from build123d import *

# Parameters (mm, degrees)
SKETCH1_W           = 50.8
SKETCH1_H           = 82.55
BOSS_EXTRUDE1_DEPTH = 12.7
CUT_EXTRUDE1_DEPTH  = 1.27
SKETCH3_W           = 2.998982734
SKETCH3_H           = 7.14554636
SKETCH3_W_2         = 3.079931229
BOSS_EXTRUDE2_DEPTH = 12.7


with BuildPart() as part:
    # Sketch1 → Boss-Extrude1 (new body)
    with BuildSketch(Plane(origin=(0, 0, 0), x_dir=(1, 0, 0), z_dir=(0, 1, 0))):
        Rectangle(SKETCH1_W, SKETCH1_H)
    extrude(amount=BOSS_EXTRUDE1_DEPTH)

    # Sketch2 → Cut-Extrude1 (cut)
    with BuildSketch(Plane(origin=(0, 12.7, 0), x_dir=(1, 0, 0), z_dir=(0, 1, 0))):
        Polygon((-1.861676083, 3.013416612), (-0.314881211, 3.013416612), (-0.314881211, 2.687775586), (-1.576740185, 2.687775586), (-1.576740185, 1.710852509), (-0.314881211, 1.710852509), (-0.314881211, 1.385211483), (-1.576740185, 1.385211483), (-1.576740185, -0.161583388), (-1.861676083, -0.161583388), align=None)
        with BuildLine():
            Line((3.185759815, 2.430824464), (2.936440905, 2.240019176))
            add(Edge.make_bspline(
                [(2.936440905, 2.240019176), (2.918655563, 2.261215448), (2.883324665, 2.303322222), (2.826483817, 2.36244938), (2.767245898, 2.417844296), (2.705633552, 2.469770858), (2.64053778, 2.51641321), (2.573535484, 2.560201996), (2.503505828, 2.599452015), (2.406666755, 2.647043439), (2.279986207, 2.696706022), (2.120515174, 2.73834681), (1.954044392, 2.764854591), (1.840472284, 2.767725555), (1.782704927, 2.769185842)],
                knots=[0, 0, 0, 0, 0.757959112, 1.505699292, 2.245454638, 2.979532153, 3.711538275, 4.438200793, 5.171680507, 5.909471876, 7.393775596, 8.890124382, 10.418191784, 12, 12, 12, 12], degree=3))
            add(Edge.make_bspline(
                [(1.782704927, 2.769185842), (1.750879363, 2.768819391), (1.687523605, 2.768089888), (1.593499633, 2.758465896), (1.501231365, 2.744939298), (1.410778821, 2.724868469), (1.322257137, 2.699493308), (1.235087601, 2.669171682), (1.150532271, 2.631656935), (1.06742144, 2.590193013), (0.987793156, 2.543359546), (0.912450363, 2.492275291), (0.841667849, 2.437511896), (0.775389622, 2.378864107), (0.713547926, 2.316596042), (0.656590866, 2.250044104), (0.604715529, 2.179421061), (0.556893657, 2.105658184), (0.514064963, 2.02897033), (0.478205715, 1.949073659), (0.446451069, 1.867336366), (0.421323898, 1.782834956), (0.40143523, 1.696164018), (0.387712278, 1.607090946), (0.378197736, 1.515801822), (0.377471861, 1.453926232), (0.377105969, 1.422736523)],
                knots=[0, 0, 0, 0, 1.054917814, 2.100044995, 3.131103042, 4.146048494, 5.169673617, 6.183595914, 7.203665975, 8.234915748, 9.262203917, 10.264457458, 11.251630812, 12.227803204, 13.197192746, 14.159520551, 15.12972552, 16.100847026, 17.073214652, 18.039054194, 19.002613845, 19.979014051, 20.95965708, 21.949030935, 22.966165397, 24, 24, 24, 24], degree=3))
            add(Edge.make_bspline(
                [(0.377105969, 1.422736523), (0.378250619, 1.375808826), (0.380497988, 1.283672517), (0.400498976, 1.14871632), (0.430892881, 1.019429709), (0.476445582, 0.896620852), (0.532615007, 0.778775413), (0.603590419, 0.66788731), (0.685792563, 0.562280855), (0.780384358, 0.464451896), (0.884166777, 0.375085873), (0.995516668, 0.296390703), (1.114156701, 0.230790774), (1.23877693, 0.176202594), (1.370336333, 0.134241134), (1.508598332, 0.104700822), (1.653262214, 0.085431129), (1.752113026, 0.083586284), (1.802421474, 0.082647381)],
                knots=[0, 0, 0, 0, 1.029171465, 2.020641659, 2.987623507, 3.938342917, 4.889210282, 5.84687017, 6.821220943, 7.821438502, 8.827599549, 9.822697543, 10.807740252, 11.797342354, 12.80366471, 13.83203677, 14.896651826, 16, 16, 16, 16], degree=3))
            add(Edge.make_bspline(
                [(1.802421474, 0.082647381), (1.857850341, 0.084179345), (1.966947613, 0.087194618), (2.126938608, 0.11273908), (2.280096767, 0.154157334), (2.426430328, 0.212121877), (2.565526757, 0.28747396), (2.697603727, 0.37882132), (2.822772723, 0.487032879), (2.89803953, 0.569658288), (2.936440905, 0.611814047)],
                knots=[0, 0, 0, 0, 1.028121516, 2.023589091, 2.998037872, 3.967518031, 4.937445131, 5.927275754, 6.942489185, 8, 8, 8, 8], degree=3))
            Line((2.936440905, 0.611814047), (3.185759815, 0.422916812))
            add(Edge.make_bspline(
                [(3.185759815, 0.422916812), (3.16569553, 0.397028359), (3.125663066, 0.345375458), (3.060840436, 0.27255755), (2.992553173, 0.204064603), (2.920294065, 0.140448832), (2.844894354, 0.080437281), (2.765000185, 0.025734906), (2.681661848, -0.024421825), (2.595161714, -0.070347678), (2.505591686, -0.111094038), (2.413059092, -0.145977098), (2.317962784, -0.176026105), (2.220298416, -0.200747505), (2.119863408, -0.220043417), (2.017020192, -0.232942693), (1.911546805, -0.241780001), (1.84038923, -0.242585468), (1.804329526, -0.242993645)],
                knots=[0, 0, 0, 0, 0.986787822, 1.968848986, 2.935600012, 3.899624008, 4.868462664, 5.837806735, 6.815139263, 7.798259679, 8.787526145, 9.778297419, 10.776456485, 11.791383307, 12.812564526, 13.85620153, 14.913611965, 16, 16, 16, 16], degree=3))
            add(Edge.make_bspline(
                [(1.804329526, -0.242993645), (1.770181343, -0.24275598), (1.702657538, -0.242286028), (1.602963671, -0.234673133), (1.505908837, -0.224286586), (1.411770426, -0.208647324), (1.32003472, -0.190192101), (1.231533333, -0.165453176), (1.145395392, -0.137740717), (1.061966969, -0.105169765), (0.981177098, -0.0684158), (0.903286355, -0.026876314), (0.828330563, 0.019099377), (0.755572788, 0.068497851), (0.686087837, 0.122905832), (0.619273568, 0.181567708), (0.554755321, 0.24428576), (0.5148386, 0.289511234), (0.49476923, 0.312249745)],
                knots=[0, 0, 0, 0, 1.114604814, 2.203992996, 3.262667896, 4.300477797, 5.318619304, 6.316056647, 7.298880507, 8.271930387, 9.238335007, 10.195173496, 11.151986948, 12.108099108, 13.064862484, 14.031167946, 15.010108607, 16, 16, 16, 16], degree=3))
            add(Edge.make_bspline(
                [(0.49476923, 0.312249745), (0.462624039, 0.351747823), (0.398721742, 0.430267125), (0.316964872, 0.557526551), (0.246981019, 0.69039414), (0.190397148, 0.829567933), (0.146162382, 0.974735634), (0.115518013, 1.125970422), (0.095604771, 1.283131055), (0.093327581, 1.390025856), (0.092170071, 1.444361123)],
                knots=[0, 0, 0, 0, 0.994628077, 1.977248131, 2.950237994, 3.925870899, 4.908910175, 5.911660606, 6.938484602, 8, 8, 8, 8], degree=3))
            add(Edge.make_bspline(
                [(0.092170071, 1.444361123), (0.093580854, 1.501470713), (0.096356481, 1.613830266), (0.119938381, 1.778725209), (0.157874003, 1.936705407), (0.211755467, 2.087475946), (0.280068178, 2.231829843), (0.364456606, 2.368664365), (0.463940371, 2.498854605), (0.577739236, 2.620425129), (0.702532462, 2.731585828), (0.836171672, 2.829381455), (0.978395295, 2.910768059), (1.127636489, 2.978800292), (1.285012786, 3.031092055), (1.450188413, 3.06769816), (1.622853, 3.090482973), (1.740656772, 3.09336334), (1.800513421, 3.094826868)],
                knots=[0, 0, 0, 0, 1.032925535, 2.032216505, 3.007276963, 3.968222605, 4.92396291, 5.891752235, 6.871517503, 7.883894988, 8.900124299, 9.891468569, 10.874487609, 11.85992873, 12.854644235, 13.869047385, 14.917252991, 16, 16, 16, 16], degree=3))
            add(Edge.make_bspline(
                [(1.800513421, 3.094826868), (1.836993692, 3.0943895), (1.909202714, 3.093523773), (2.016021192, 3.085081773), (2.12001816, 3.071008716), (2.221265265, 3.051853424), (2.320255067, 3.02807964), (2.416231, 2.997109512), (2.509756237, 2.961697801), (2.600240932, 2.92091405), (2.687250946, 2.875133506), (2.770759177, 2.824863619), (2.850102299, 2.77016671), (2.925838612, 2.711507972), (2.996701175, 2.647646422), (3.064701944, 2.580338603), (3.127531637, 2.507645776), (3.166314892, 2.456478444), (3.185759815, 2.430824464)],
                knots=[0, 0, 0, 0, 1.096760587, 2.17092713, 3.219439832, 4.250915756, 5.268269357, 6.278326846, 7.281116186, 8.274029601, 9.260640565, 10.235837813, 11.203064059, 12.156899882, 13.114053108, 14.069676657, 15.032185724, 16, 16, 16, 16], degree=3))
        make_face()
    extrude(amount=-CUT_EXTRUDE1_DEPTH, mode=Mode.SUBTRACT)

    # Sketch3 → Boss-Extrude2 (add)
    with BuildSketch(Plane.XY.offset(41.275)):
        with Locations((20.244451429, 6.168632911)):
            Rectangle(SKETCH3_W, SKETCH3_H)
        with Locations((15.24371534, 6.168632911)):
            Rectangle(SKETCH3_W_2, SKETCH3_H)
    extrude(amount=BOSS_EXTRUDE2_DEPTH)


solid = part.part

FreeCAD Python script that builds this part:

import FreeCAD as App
import Part
import Sketcher

V = App.Vector
Q = App.Units.Quantity


def add_polygon(sketch, points):
    """Adds a closed chain of lines whose ends are joined by coincident constraints."""
    first, n = sketch.GeometryCount, len(points)
    for a, b in zip(points, points[1:] + points[:1]):
        sketch.addGeometry(Part.LineSegment(App.Vector(*a, 0), App.Vector(*b, 0)), False)
    for i in range(n):
        sketch.addConstraint(Sketcher.Constraint("Coincident", first + i, 2, first + (i + 1) % n, 1))

doc = App.newDocument("Part")
body = doc.addObject("PartDesign::Body", "Body")

# Sketch on XZ plane
sketch1 = body.newObject("Sketcher::SketchObject", "Sketch")
sketch1.AttachmentSupport = (doc.getObject("XZ_Plane"), [""])
sketch1.MapMode = "FlatFace"
add_polygon(sketch1, [(-25, -41), (-25, 41), (25, 41), (25, -41)])  # lines 0-3
sketch1.addConstraint([
    Sketcher.Constraint("Vertical", 0),
    Sketcher.Constraint("Horizontal", 1),
    Sketcher.Constraint("Vertical", 2),
    Sketcher.Constraint("Horizontal", 3),
    Sketcher.Constraint("Symmetric", 0, 2, 2, 2, -1, 1),
    Sketcher.Constraint("DistanceX", 1, 1, 1, 2, Q("2 in")),
    Sketcher.Constraint("DistanceY", 0, 1, 0, 2, Q("3.25 in")),
])
pad1 = body.newObject("PartDesign::Pad", "Pad")
pad1.Profile = sketch1
pad1.Length = Q("0.5 in")
pad1.Reversed = True

# Sketch on XZ plane
sketch2 = body.newObject("Sketcher::SketchObject", "Sketch001")
sketch2.AttachmentSupport = (doc.getObject("XZ_Plane"), [""])
sketch2.MapMode = "FlatFace"
sketch2.AttachmentOffset = App.Placement(V(0, 0, -0.5 * 25.4), App.Rotation())
add_polygon(sketch2, [(-0.314881, -3.013417), (-1.861676, -3.013417), (-1.861676, 0.161583), (-1.57674, 0.161583), (-1.57674, -1.385211), (-0.314881, -1.385211), (-0.314881, -1.710853), (-1.57674, -1.710853), (-1.57674, -2.687776), (-0.314881, -2.687776)])  # lines 0-9
sketch2.addGeometry(Part.LineSegment(V(2.936441, -2.240019, 0), V(3.18576, -2.430824, 0)), False)  # 10
sketch2.addGeometry(Part.BSplineCurve([V(1.800513, -3.094827, 0), V(1.836994, -3.09439, 0), V(1.909203, -3.093524, 0), V(2.016021, -3.085082, 0), V(2.120018, -3.071009, 0), V(2.221265, -3.051853, 0), V(2.320255, -3.02808, 0), V(2.416231, -2.99711, 0), V(2.509756, -2.961698, 0), V(2.600241, -2.920914, 0), V(2.687251, -2.875134, 0), V(2.770759, -2.824864, 0), V(2.850102, -2.770167, 0), V(2.925839, -2.711508, 0), V(2.996701, -2.647646, 0), V(3.064702, -2.580339, 0), V(3.127532, -2.507646, 0), V(3.166315, -2.456478, 0), V(3.18576, -2.430824, 0)], [4, 1, 1, 1, 1, 1, 1, 1, 1, 1, 1, 1, 1, 1, 1, 1, 4], [0, 1.096760587, 2.17092713, 3.219439832, 4.250915756, 5.268269357, 6.278326846, 7.281116186, 8.274029601, 9.260640565, 10.235837813, 11.203064059, 12.156899882, 13.114053108, 14.069676657, 15.032185724, 16], False, 3, [1, 1, 1, 1, 1, 1, 1, 1, 1, 1, 1, 1, 1, 1, 1, 1, 1, 1, 1], False), False)  # 11
sketch2.addGeometry(Part.BSplineCurve([V(0.09217, -1.444361, 0), V(0.093581, -1.501471, 0), V(0.096356, -1.61383, 0), V(0.119938, -1.778725, 0), V(0.157874, -1.936705, 0), V(0.211755, -2.087476, 0), V(0.280068, -2.23183, 0), V(0.364457, -2.368664, 0), V(0.46394, -2.498855, 0), V(0.577739, -2.620425, 0), V(0.702532, -2.731586, 0), V(0.836172, -2.829381, 0), V(0.978395, -2.910768, 0), V(1.127636, -2.9788, 0), V(1.285013, -3.031092, 0), V(1.450188, -3.067698, 0), V(1.622853, -3.090483, 0), V(1.740657, -3.093363, 0), V(1.800513, -3.094827, 0)], [4, 1, 1, 1, 1, 1, 1, 1, 1, 1, 1, 1, 1, 1, 1, 1, 4], [0, 1.032925535, 2.032216505, 3.007276963, 3.968222605, 4.92396291, 5.891752235, 6.871517503, 7.883894988, 8.900124299, 9.891468569, 10.874487609, 11.85992873, 12.854644235, 13.869047385, 14.917252991, 16], False, 3, [1, 1, 1, 1, 1, 1, 1, 1, 1, 1, 1, 1, 1, 1, 1, 1, 1, 1, 1], False), False)  # 12
sketch2.addGeometry(Part.BSplineCurve([V(0.494769, -0.31225, 0), V(0.462624, -0.351748, 0), V(0.398722, -0.430267, 0), V(0.316965, -0.557527, 0), V(0.246981, -0.690394, 0), V(0.190397, -0.829568, 0), V(0.146162, -0.974736, 0), V(0.115518, -1.12597, 0), V(0.095605, -1.283131, 0), V(0.093328, -1.390026, 0), V(0.09217, -1.444361, 0)], [4, 1, 1, 1, 1, 1, 1, 1, 4], [0, 0.994628077, 1.977248131, 2.950237994, 3.925870899, 4.908910175, 5.911660606, 6.938484602, 8], False, 3, [1, 1, 1, 1, 1, 1, 1, 1, 1, 1, 1], False), False)  # 13
sketch2.addGeometry(Part.BSplineCurve([V(1.80433, 0.242994, 0), V(1.770181, 0.242756, 0), V(1.702658, 0.242286, 0), V(1.602964, 0.234673, 0), V(1.505909, 0.224287, 0), V(1.41177, 0.208647, 0), V(1.320035, 0.190192, 0), V(1.231533, 0.165453, 0), V(1.145395, 0.137741, 0), V(1.061967, 0.10517, 0), V(0.981177, 0.068416, 0), V(0.903286, 0.026876, 0), V(0.828331, -0.019099, 0), V(0.755573, -0.068498, 0), V(0.686088, -0.122906, 0), V(0.619274, -0.181568, 0), V(0.554755, -0.244286, 0), V(0.514839, -0.289511, 0), V(0.494769, -0.31225, 0)], [4, 1, 1, 1, 1, 1, 1, 1, 1, 1, 1, 1, 1, 1, 1, 1, 4], [0, 1.114604814, 2.203992996, 3.262667896, 4.300477797, 5.318619304, 6.316056647, 7.298880507, 8.271930387, 9.238335007, 10.195173496, 11.151986948, 12.108099108, 13.064862484, 14.031167946, 15.010108607, 16], False, 3, [1, 1, 1, 1, 1, 1, 1, 1, 1, 1, 1, 1, 1, 1, 1, 1, 1, 1, 1], False), False)  # 14
sketch2.addGeometry(Part.BSplineCurve([V(3.18576, -0.422917, 0), V(3.165696, -0.397028, 0), V(3.125663, -0.345375, 0), V(3.06084, -0.272558, 0), V(2.992553, -0.204065, 0), V(2.920294, -0.140449, 0), V(2.844894, -0.080437, 0), V(2.765, -0.025735, 0), V(2.681662, 0.024422, 0), V(2.595162, 0.070348, 0), V(2.505592, 0.111094, 0), V(2.413059, 0.145977, 0), V(2.317963, 0.176026, 0), V(2.220298, 0.200748, 0), V(2.119863, 0.220043, 0), V(2.01702, 0.232943, 0), V(1.911547, 0.24178, 0), V(1.840389, 0.242585, 0), V(1.80433, 0.242994, 0)], [4, 1, 1, 1, 1, 1, 1, 1, 1, 1, 1, 1, 1, 1, 1, 1, 4], [0, 0.986787822, 1.968848986, 2.935600012, 3.899624008, 4.868462664, 5.837806735, 6.815139263, 7.798259679, 8.787526145, 9.778297419, 10.776456485, 11.791383307, 12.812564526, 13.85620153, 14.913611965, 16], False, 3, [1, 1, 1, 1, 1, 1, 1, 1, 1, 1, 1, 1, 1, 1, 1, 1, 1, 1, 1], False), False)  # 15
sketch2.addGeometry(Part.LineSegment(V(3.18576, -0.422917, 0), V(2.936441, -0.611814, 0)), False)  # 16
sketch2.addGeometry(Part.BSplineCurve([V(1.802421, -0.082647, 0), V(1.85785, -0.084179, 0), V(1.966948, -0.087195, 0), V(2.126939, -0.112739, 0), V(2.280097, -0.154157, 0), V(2.42643, -0.212122, 0), V(2.565527, -0.287474, 0), V(2.697604, -0.378821, 0), V(2.822773, -0.487033, 0), V(2.89804, -0.569658, 0), V(2.936441, -0.611814, 0)], [4, 1, 1, 1, 1, 1, 1, 1, 4], [0, 1.028121516, 2.023589091, 2.998037872, 3.967518031, 4.937445131, 5.927275754, 6.942489185, 8], False, 3, [1, 1, 1, 1, 1, 1, 1, 1, 1, 1, 1], False), False)  # 17
sketch2.addGeometry(Part.BSplineCurve([V(0.377106, -1.422737, 0), V(0.378251, -1.375809, 0), V(0.380498, -1.283673, 0), V(0.400499, -1.148716, 0), V(0.430893, -1.01943, 0), V(0.476446, -0.896621, 0), V(0.532615, -0.778775, 0), V(0.60359, -0.667887, 0), V(0.685793, -0.562281, 0), V(0.780384, -0.464452, 0), V(0.884167, -0.375086, 0), V(0.995517, -0.296391, 0), V(1.114157, -0.230791, 0), V(1.238777, -0.176203, 0), V(1.370336, -0.134241, 0), V(1.508598, -0.104701, 0), V(1.653262, -0.085431, 0), V(1.752113, -0.083586, 0), V(1.802421, -0.082647, 0)], [4, 1, 1, 1, 1, 1, 1, 1, 1, 1, 1, 1, 1, 1, 1, 1, 4], [0, 1.029171465, 2.020641659, 2.987623507, 3.938342917, 4.889210282, 5.84687017, 6.821220943, 7.821438502, 8.827599549, 9.822697543, 10.807740252, 11.797342354, 12.80366471, 13.83203677, 14.896651826, 16], False, 3, [1, 1, 1, 1, 1, 1, 1, 1, 1, 1, 1, 1, 1, 1, 1, 1, 1, 1, 1], False), False)  # 18
sketch2.addGeometry(Part.BSplineCurve([V(1.782705, -2.769186, 0), V(1.750879, -2.768819, 0), V(1.687524, -2.76809, 0), V(1.5935, -2.758466, 0), V(1.501231, -2.744939, 0), V(1.410779, -2.724868, 0), V(1.322257, -2.699493, 0), V(1.235088, -2.669172, 0), V(1.150532, -2.631657, 0), V(1.067421, -2.590193, 0), V(0.987793, -2.54336, 0), V(0.91245, -2.492275, 0), V(0.841668, -2.437512, 0), V(0.77539, -2.378864, 0), V(0.713548, -2.316596, 0), V(0.656591, -2.250044, 0), V(0.604716, -2.179421, 0), V(0.556894, -2.105658, 0), V(0.514065, -2.02897, 0), V(0.478206, -1.949074, 0), V(0.446451, -1.867336, 0), V(0.421324, -1.782835, 0), V(0.401435, -1.696164, 0), V(0.387712, -1.607091, 0), V(0.378198, -1.515802, 0), V(0.377472, -1.453926, 0), V(0.377106, -1.422737, 0)], [4, 1, 1, 1, 1, 1, 1, 1, 1, 1, 1, 1, 1, 1, 1, 1, 1, 1, 1, 1, 1, 1, 1, 1, 4], [0, 1.054917814, 2.100044995, 3.131103042, 4.146048494, 5.169673617, 6.183595914, 7.203665975, 8.234915748, 9.262203917, 10.264457458, 11.251630812, 12.227803204, 13.197192746, 14.159520551, 15.12972552, 16.100847026, 17.073214652, 18.039054194, 19.002613845, 19.979014051, 20.95965708, 21.949030935, 22.966165397, 24], False, 3, [1, 1, 1, 1, 1, 1, 1, 1, 1, 1, 1, 1, 1, 1, 1, 1, 1, 1, 1, 1, 1, 1, 1, 1, 1, 1, 1], False), False)  # 19
sketch2.addGeometry(Part.BSplineCurve([V(2.936441, -2.240019, 0), V(2.918656, -2.261215, 0), V(2.883325, -2.303322, 0), V(2.826484, -2.362449, 0), V(2.767246, -2.417844, 0), V(2.705634, -2.469771, 0), V(2.640538, -2.516413, 0), V(2.573535, -2.560202, 0), V(2.503506, -2.599452, 0), V(2.406667, -2.647043, 0), V(2.279986, -2.696706, 0), V(2.120515, -2.738347, 0), V(1.954044, -2.764855, 0), V(1.840472, -2.767726, 0), V(1.782705, -2.769186, 0)], [4, 1, 1, 1, 1, 1, 1, 1, 1, 1, 1, 1, 4], [0, 0.757959112, 1.505699292, 2.245454638, 2.979532153, 3.711538275, 4.438200793, 5.171680507, 5.909471876, 7.393775596, 8.890124382, 10.418191784, 12], False, 3, [1, 1, 1, 1, 1, 1, 1, 1, 1, 1, 1, 1, 1, 1, 1], False), False)  # 20
sketch2.addConstraint([
    Sketcher.Constraint("Block", 11),
    Sketcher.Constraint("Block", 12),
    Sketcher.Constraint("Block", 13),
    Sketcher.Constraint("Block", 14),
    Sketcher.Constraint("Block", 15),
    Sketcher.Constraint("Block", 17),
    Sketcher.Constraint("Block", 18),
    Sketcher.Constraint("Block", 19),
    Sketcher.Constraint("Block", 20),
    Sketcher.Constraint("Coincident", 10, 2, 11, 2),
    Sketcher.Constraint("Coincident", 15, 1, 16, 1),
    Sketcher.Constraint("Coincident", 16, 2, 17, 2),
    Sketcher.Constraint("Coincident", 20, 1, 10, 1),
    Sketcher.Constraint("Horizontal", 0),
    Sketcher.Constraint("Vertical", 1),
    Sketcher.Constraint("Horizontal", 2),
    Sketcher.Constraint("Vertical", 3),
    Sketcher.Constraint("Horizontal", 4),
    Sketcher.Constraint("Vertical", 5),
    Sketcher.Constraint("Horizontal", 6),
    Sketcher.Constraint("Vertical", 7),
    Sketcher.Constraint("Horizontal", 8),
    Sketcher.Constraint("Vertical", 9),
    Sketcher.Constraint("Vertical", 3, 2, 6, 2),
    Sketcher.Constraint("Vertical", 5, 2, 8, 2),
    Sketcher.Constraint("Equal", 0, 3),
    Sketcher.Constraint("Equal", 5, 9),
    Sketcher.Constraint("DistanceY", 1, 1, 1, 2, Q("0.125 in")),
    Sketcher.Constraint("DistanceX", 7, 2, 10, 2, Q("0.1875 in")),
    Sketcher.Constraint("DistanceX", 4, 1, 4, 2, Q("1.261859 mm")),
    Sketcher.Constraint("DistanceY", 5, 2, 5, 1, Q("0.325641 mm")),
    Sketcher.Constraint("DistanceX", 0, 2, 0, 1, Q("1.546795 mm")),
    Sketcher.Constraint("DistanceY", 3, 2, -1, 1, Q("1.385211 mm")),
])
pocket1 = body.newObject("PartDesign::Pocket", "Pocket")
pocket1.Profile = sketch2
pocket1.Length = Q("0.05 in")
pocket1.Reversed = True

# Sketch on XY plane
sketch3 = body.newObject("Sketcher::SketchObject", "Sketch002")
sketch3.AttachmentSupport = (doc.getObject("XY_Plane"), [""])
sketch3.MapMode = "FlatFace"
sketch3.AttachmentOffset = App.Placement(V(0, 0, 1.625 * 25.4), App.Rotation())
add_polygon(sketch3, [(18.7, 9.7), (18.7, 2.6), (21.7, 2.6), (21.7, 9.7)])  # lines 0-3
add_polygon(sketch3, [(13.7, 9.7), (13.7, 2.6), (16.8, 2.6), (16.8, 9.7)])  # lines 4-7
sketch3.addConstraint([
    Sketcher.Constraint("Vertical", 0),
    Sketcher.Constraint("Horizontal", 1),
    Sketcher.Constraint("Vertical", 2),
    Sketcher.Constraint("Horizontal", 3),
    Sketcher.Constraint("Vertical", 4),
    Sketcher.Constraint("Horizontal", 5),
    Sketcher.Constraint("Vertical", 6),
    Sketcher.Constraint("Horizontal", 7),
    Sketcher.Constraint("Horizontal", 1, 2, 4, 2),
    Sketcher.Constraint("Horizontal", 3, 2, 6, 2),
    Sketcher.Constraint("DistanceX", 5, 1, 5, 2, Q("3.079931 mm")),
    Sketcher.Constraint("DistanceX", 1, 1, 1, 2, Q("2.998983 mm")),
    Sketcher.Constraint("DistanceY", 0, 2, 0, 1, Q("7.145546 mm")),
    Sketcher.Constraint("DistanceX", -1, 1, 0, 2, Q("18.74496 mm")),
    Sketcher.Constraint("DistanceY", -1, 1, 0, 2, Q("2.59586 mm")),
    Sketcher.Constraint("DistanceX", -1, 1, 4, 2, Q("13.70375 mm")),
])
pad2 = body.newObject("PartDesign::Pad", "Pad001")
pad2.Profile = sketch3
pad2.Length = Q("0.5 in")

doc.recompute()
